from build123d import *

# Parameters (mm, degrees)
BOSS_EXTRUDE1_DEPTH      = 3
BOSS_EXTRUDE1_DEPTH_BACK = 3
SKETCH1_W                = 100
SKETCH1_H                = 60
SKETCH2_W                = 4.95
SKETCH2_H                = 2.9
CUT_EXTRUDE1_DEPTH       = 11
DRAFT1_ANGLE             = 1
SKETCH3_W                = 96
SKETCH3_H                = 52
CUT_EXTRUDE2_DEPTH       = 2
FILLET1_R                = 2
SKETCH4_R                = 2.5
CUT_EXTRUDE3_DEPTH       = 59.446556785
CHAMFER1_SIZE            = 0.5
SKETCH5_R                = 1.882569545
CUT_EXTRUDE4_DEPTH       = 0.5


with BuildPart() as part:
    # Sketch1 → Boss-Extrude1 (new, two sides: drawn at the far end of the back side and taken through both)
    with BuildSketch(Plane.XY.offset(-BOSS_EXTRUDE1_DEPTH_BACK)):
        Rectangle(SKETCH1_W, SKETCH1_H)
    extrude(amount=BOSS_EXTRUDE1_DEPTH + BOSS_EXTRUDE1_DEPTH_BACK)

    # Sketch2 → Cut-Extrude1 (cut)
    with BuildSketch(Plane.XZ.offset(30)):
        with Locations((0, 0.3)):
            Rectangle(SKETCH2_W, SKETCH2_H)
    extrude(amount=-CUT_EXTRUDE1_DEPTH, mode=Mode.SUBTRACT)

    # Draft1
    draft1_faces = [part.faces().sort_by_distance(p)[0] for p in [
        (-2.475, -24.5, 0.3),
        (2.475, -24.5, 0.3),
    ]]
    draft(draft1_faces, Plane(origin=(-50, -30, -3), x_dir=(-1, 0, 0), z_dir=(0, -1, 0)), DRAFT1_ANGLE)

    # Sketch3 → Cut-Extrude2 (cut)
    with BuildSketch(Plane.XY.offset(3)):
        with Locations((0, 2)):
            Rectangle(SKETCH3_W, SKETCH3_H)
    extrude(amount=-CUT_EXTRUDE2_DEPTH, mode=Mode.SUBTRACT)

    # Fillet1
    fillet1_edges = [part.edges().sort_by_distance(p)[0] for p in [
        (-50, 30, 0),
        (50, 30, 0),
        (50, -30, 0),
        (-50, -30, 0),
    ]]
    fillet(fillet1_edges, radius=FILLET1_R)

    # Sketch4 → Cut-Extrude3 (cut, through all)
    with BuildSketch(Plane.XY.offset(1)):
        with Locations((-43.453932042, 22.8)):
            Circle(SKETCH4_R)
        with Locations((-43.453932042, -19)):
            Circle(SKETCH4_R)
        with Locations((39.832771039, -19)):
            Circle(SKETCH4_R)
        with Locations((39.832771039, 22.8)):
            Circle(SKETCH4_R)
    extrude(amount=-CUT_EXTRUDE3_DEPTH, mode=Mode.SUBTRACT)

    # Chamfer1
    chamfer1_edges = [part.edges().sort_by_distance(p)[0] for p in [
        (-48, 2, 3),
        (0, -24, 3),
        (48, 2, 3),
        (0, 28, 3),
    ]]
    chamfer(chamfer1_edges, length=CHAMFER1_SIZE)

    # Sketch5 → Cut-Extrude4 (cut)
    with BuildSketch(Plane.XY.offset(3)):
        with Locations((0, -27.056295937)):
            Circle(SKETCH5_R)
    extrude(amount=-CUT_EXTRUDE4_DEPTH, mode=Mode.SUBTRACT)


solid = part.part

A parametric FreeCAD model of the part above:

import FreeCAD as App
import Part
import Sketcher
from FreeCAD import Vector


def edges_at(feature, points):
    """Names of the edges that pass closest to the given points."""
    edges = feature.Shape.Edges
    near = lambda p: min(range(len(edges)), key=lambda i: edges[i].distToShape(Part.Vertex(*p))[0])
    return sorted({f"Edge{near(p) + 1}" for p in points})


def faces_at(feature, points):
    """Names of the faces that lie closest to the given points."""
    faces = feature.Shape.Faces
    near = lambda p: min(range(len(faces)), key=lambda i: faces[i].distToShape(Part.Vertex(*p))[0])
    return sorted({f"Face{near(p) + 1}" for p in points})

doc = App.newDocument("Part")
body = doc.addObject("PartDesign::Body", "Body")

sketch1 = body.newObject("Sketcher::SketchObject", "Sketch")
sketch1.AttachmentSupport = (doc.getObject("XY_Plane"), [""])
sketch1.MapMode = "FlatFace"
sketch1.addGeometry([
    Part.LineSegment(Vector(-50, 30, 0), Vector(-50, -30, 0)),
    Part.LineSegment(Vector(-50, -30, 0), Vector(50, -30, 0)),
    Part.LineSegment(Vector(50, -30, 0), Vector(50, 30, 0)),
    Part.LineSegment(Vector(50, 30, 0), Vector(-50, 30, 0)),
], False)
sketch1.addConstraint([
    Sketcher.Constraint("Coincident", 0, 2, 1, 1),
    Sketcher.Constraint("Coincident", 1, 2, 2, 1),
    Sketcher.Constraint("Coincident", 2, 2, 3, 1),
    Sketcher.Constraint("Coincident", 3, 2, 0, 1),
    Sketcher.Constraint("Vertical", 0),
    Sketcher.Constraint("Horizontal", 1),
    Sketcher.Constraint("Vertical", 2),
    Sketcher.Constraint("Horizontal", 3),
    Sketcher.Constraint("Symmetric", 0, 2, 2, 2, -1, 1),
    Sketcher.Constraint("DistanceX", 1, 1, 1, 2, 100.0),
    Sketcher.Constraint("DistanceY", 0, 2, 0, 1, 60.0),
])
pad1 = body.newObject("PartDesign::Pad", "Pad")
pad1.Profile = sketch1
pad1.Type = "TwoLengths"
pad1.Length = 3
pad1.Length2 = 3

sketch2 = body.newObject("Sketcher::SketchObject", "Sketch001")
sketch2.AttachmentSupport = (doc.getObject("XZ_Plane"), [""])
sketch2.MapMode = "FlatFace"
sketch2.AttachmentOffset = App.Placement(Vector(0, 0, 30), App.Rotation())
sketch2.addGeometry([
    Part.LineSegment(Vector(-2.5, 1.8, 0), Vector(-2.5, -1.1, 0)),
    Part.LineSegment(Vector(-2.5, -1.1, 0), Vector(2.5, -1.1, 0)),
    Part.LineSegment(Vector(2.5, -1.1, 0), Vector(2.5, 1.8, 0)),
    Part.LineSegment(Vector(2.5, 1.8, 0), Vector(-2.5, 1.8, 0)),
], False)
sketch2.addConstraint([
    Sketcher.Constraint("Coincident", 0, 2, 1, 1),
    Sketcher.Constraint("Coincident", 1, 2, 2, 1),
    Sketcher.Constraint("Coincident", 2, 2, 3, 1),
    Sketcher.Constraint("Coincident", 3, 2, 0, 1),
    Sketcher.Constraint("Vertical", 0),
    Sketcher.Constraint("Horizontal", 1),
    Sketcher.Constraint("Vertical", 2),
    Sketcher.Constraint("Horizontal", 3),
    Sketcher.Constraint("DistanceY", 0, 2, 0, 1, 2.9),
    Sketcher.Constraint("DistanceX", 1, 1, 1, 2, 4.95),
    Sketcher.Constraint("DistanceY", 0, 2, -1, 1, 1.15),
    Sketcher.Constraint("DistanceX", 0, 2, -1, 1, 2.475),
])
pocket1 = body.newObject("PartDesign::Pocket", "Pocket")
pocket1.Profile = sketch2
pocket1.Length = 11
doc.recompute()

datumplane = body.newObject("PartDesign::Plane", "DatumPlane")
datumplane.AttachmentSupport = (doc.getObject("XZ_Plane"), [""])
datumplane.MapMode = "FlatFace"
datumplane.AttachmentOffset = App.Placement(Vector(0, 0, 30), App.Rotation())
draft = body.newObject("PartDesign::Draft", "Draft")
draft.Base = (pocket1, faces_at(pocket1, [(-2.475, -24.5, 0.3), (2.475, -24.5, 0.3)]))
draft.NeutralPlane = (datumplane, [""])
draft.Angle = 1
draft.Reversed = False

sketch3 = body.newObject("Sketcher::SketchObject", "Sketch002")
sketch3.AttachmentSupport = (doc.getObject("XY_Plane"), [""])
sketch3.MapMode = "FlatFace"
sketch3.AttachmentOffset = App.Placement(Vector(0, 0, 3), App.Rotation())
sketch3.addGeometry([
    Part.LineSegment(Vector(-48, 28, 0), Vector(-48, -24, 0)),
    Part.LineSegment(Vector(-48, -24, 0), Vector(48, -24, 0)),
    Part.LineSegment(Vector(48, -24, 0), Vector(48, 28, 0)),
    Part.LineSegment(Vector(48, 28, 0), Vector(-48, 28, 0)),
], False)
sketch3.addConstraint([
    Sketcher.Constraint("Coincident", 0, 2, 1, 1),
    Sketcher.Constraint("Coincident", 1, 2, 2, 1),
    Sketcher.Constraint("Coincident", 2, 2, 3, 1),
    Sketcher.Constraint("Coincident", 3, 2, 0, 1),
    Sketcher.Constraint("Vertical", 0),
    Sketcher.Constraint("Horizontal", 1),
    Sketcher.Constraint("Vertical", 2),
    Sketcher.Constraint("Horizontal", 3),
    Sketcher.Constraint("DistanceX", 1, 1, 1, 2, 96.0),
    Sketcher.Constraint("DistanceY", 0, 2, 0, 1, 52.0),
    Sketcher.Constraint("DistanceX", 0, 2, -1, 1, 48.0),
    Sketcher.Constraint("DistanceY", 0, 2, -1, 1, 24.0),
])
pocket2 = body.newObject("PartDesign::Pocket", "Pocket001")
pocket2.Profile = sketch3
pocket2.Length = 2
doc.recompute()

fillet = body.newObject("PartDesign::Fillet", "Fillet")
fillet.Base = (pocket2, edges_at(pocket2, [
    (-50, 30, 0),
    (50, 30, 0),
    (50, -30, 0),
    (-50, -30, 0),
]))
fillet.Radius = 2

sketch4 = body.newObject("Sketcher::SketchObject", "Sketch003")
sketch4.AttachmentSupport = (doc.getObject("XY_Plane"), [""])
sketch4.MapMode = "FlatFace"
sketch4.AttachmentOffset = App.Placement(Vector(0, 0, 1), App.Rotation())
sketch4.addGeometry([
    Part.Circle(Vector(-43.5, 22.8, 0), Vector(0, 0, 1), 2.5),
    Part.Circle(Vector(-43.5, -19, 0), Vector(0, 0, 1), 2.5),
    Part.Circle(Vector(39.8, -19, 0), Vector(0, 0, 1), 2.5),
    Part.Circle(Vector(39.8, 22.8, 0), Vector(0, 0, 1), 2.5),
], False)
sketch4.addConstraint([
    Sketcher.Constraint("Equal", 0, 1),
    Sketcher.Constraint("Equal", 1, 2),
    Sketcher.Constraint("Equal", 2, 3),
    Sketcher.Constraint("Horizontal", 1, 3, 2, 3),
    Sketcher.Constraint("Horizontal", 0, 3, 3, 3),
    Sketcher.Constraint("Vertical", 0, 3, 1, 3),
    Sketcher.Constraint("Vertical", 2, 3, 3, 3),
    Sketcher.Constraint("Diameter", 0, 5.0),
    Sketcher.Constraint("DistanceY", 1, 3, -1, 1, 19.0),
    Sketcher.Constraint("DistanceY", -1, 1, 0, 3, 22.8),
    Sketcher.Constraint("DistanceX", -1, 1, 2, 3, 39.832771),
    Sketcher.Constraint("DistanceX", 0, 3, -1, 1, 43.453932),
])
pocket3 = body.newObject("PartDesign::Pocket", "Pocket002")
pocket3.Profile = sketch4
pocket3.Type = "ThroughAll"
doc.recompute()

chamfer = body.newObject("PartDesign::Chamfer", "Chamfer")
chamfer.Base = (pocket3, edges_at(pocket3, [
    (-48, 2, 3),
    (0, -24, 3),
    (48, 2, 3),
    (0, 28, 3),
]))
chamfer.Size = 0.5

sketch5 = body.newObject("Sketcher::SketchObject", "Sketch004")
sketch5.AttachmentSupport = (doc.getObject("XY_Plane"), [""])
sketch5.MapMode = "FlatFace"
sketch5.AttachmentOffset = App.Placement(Vector(0, 0, 3), App.Rotation())
sketch5.addGeometry(Part.Circle(Vector(0, -27.1, 0), Vector(0, 0, 1), 1.9), False)
sketch5.addConstraint([
    Sketcher.Constraint("PointOnObject", 0, 3, -2),
    Sketcher.Constraint("Diameter", 0, 3.765139),
    Sketcher.Constraint("DistanceY", 0, 3, -1, 1, 27.056296),
])
pocket4 = body.newObject("PartDesign::Pocket", "Pocket003")
pocket4.Profile = sketch5
pocket4.Length = 0.5

doc.recompute()
